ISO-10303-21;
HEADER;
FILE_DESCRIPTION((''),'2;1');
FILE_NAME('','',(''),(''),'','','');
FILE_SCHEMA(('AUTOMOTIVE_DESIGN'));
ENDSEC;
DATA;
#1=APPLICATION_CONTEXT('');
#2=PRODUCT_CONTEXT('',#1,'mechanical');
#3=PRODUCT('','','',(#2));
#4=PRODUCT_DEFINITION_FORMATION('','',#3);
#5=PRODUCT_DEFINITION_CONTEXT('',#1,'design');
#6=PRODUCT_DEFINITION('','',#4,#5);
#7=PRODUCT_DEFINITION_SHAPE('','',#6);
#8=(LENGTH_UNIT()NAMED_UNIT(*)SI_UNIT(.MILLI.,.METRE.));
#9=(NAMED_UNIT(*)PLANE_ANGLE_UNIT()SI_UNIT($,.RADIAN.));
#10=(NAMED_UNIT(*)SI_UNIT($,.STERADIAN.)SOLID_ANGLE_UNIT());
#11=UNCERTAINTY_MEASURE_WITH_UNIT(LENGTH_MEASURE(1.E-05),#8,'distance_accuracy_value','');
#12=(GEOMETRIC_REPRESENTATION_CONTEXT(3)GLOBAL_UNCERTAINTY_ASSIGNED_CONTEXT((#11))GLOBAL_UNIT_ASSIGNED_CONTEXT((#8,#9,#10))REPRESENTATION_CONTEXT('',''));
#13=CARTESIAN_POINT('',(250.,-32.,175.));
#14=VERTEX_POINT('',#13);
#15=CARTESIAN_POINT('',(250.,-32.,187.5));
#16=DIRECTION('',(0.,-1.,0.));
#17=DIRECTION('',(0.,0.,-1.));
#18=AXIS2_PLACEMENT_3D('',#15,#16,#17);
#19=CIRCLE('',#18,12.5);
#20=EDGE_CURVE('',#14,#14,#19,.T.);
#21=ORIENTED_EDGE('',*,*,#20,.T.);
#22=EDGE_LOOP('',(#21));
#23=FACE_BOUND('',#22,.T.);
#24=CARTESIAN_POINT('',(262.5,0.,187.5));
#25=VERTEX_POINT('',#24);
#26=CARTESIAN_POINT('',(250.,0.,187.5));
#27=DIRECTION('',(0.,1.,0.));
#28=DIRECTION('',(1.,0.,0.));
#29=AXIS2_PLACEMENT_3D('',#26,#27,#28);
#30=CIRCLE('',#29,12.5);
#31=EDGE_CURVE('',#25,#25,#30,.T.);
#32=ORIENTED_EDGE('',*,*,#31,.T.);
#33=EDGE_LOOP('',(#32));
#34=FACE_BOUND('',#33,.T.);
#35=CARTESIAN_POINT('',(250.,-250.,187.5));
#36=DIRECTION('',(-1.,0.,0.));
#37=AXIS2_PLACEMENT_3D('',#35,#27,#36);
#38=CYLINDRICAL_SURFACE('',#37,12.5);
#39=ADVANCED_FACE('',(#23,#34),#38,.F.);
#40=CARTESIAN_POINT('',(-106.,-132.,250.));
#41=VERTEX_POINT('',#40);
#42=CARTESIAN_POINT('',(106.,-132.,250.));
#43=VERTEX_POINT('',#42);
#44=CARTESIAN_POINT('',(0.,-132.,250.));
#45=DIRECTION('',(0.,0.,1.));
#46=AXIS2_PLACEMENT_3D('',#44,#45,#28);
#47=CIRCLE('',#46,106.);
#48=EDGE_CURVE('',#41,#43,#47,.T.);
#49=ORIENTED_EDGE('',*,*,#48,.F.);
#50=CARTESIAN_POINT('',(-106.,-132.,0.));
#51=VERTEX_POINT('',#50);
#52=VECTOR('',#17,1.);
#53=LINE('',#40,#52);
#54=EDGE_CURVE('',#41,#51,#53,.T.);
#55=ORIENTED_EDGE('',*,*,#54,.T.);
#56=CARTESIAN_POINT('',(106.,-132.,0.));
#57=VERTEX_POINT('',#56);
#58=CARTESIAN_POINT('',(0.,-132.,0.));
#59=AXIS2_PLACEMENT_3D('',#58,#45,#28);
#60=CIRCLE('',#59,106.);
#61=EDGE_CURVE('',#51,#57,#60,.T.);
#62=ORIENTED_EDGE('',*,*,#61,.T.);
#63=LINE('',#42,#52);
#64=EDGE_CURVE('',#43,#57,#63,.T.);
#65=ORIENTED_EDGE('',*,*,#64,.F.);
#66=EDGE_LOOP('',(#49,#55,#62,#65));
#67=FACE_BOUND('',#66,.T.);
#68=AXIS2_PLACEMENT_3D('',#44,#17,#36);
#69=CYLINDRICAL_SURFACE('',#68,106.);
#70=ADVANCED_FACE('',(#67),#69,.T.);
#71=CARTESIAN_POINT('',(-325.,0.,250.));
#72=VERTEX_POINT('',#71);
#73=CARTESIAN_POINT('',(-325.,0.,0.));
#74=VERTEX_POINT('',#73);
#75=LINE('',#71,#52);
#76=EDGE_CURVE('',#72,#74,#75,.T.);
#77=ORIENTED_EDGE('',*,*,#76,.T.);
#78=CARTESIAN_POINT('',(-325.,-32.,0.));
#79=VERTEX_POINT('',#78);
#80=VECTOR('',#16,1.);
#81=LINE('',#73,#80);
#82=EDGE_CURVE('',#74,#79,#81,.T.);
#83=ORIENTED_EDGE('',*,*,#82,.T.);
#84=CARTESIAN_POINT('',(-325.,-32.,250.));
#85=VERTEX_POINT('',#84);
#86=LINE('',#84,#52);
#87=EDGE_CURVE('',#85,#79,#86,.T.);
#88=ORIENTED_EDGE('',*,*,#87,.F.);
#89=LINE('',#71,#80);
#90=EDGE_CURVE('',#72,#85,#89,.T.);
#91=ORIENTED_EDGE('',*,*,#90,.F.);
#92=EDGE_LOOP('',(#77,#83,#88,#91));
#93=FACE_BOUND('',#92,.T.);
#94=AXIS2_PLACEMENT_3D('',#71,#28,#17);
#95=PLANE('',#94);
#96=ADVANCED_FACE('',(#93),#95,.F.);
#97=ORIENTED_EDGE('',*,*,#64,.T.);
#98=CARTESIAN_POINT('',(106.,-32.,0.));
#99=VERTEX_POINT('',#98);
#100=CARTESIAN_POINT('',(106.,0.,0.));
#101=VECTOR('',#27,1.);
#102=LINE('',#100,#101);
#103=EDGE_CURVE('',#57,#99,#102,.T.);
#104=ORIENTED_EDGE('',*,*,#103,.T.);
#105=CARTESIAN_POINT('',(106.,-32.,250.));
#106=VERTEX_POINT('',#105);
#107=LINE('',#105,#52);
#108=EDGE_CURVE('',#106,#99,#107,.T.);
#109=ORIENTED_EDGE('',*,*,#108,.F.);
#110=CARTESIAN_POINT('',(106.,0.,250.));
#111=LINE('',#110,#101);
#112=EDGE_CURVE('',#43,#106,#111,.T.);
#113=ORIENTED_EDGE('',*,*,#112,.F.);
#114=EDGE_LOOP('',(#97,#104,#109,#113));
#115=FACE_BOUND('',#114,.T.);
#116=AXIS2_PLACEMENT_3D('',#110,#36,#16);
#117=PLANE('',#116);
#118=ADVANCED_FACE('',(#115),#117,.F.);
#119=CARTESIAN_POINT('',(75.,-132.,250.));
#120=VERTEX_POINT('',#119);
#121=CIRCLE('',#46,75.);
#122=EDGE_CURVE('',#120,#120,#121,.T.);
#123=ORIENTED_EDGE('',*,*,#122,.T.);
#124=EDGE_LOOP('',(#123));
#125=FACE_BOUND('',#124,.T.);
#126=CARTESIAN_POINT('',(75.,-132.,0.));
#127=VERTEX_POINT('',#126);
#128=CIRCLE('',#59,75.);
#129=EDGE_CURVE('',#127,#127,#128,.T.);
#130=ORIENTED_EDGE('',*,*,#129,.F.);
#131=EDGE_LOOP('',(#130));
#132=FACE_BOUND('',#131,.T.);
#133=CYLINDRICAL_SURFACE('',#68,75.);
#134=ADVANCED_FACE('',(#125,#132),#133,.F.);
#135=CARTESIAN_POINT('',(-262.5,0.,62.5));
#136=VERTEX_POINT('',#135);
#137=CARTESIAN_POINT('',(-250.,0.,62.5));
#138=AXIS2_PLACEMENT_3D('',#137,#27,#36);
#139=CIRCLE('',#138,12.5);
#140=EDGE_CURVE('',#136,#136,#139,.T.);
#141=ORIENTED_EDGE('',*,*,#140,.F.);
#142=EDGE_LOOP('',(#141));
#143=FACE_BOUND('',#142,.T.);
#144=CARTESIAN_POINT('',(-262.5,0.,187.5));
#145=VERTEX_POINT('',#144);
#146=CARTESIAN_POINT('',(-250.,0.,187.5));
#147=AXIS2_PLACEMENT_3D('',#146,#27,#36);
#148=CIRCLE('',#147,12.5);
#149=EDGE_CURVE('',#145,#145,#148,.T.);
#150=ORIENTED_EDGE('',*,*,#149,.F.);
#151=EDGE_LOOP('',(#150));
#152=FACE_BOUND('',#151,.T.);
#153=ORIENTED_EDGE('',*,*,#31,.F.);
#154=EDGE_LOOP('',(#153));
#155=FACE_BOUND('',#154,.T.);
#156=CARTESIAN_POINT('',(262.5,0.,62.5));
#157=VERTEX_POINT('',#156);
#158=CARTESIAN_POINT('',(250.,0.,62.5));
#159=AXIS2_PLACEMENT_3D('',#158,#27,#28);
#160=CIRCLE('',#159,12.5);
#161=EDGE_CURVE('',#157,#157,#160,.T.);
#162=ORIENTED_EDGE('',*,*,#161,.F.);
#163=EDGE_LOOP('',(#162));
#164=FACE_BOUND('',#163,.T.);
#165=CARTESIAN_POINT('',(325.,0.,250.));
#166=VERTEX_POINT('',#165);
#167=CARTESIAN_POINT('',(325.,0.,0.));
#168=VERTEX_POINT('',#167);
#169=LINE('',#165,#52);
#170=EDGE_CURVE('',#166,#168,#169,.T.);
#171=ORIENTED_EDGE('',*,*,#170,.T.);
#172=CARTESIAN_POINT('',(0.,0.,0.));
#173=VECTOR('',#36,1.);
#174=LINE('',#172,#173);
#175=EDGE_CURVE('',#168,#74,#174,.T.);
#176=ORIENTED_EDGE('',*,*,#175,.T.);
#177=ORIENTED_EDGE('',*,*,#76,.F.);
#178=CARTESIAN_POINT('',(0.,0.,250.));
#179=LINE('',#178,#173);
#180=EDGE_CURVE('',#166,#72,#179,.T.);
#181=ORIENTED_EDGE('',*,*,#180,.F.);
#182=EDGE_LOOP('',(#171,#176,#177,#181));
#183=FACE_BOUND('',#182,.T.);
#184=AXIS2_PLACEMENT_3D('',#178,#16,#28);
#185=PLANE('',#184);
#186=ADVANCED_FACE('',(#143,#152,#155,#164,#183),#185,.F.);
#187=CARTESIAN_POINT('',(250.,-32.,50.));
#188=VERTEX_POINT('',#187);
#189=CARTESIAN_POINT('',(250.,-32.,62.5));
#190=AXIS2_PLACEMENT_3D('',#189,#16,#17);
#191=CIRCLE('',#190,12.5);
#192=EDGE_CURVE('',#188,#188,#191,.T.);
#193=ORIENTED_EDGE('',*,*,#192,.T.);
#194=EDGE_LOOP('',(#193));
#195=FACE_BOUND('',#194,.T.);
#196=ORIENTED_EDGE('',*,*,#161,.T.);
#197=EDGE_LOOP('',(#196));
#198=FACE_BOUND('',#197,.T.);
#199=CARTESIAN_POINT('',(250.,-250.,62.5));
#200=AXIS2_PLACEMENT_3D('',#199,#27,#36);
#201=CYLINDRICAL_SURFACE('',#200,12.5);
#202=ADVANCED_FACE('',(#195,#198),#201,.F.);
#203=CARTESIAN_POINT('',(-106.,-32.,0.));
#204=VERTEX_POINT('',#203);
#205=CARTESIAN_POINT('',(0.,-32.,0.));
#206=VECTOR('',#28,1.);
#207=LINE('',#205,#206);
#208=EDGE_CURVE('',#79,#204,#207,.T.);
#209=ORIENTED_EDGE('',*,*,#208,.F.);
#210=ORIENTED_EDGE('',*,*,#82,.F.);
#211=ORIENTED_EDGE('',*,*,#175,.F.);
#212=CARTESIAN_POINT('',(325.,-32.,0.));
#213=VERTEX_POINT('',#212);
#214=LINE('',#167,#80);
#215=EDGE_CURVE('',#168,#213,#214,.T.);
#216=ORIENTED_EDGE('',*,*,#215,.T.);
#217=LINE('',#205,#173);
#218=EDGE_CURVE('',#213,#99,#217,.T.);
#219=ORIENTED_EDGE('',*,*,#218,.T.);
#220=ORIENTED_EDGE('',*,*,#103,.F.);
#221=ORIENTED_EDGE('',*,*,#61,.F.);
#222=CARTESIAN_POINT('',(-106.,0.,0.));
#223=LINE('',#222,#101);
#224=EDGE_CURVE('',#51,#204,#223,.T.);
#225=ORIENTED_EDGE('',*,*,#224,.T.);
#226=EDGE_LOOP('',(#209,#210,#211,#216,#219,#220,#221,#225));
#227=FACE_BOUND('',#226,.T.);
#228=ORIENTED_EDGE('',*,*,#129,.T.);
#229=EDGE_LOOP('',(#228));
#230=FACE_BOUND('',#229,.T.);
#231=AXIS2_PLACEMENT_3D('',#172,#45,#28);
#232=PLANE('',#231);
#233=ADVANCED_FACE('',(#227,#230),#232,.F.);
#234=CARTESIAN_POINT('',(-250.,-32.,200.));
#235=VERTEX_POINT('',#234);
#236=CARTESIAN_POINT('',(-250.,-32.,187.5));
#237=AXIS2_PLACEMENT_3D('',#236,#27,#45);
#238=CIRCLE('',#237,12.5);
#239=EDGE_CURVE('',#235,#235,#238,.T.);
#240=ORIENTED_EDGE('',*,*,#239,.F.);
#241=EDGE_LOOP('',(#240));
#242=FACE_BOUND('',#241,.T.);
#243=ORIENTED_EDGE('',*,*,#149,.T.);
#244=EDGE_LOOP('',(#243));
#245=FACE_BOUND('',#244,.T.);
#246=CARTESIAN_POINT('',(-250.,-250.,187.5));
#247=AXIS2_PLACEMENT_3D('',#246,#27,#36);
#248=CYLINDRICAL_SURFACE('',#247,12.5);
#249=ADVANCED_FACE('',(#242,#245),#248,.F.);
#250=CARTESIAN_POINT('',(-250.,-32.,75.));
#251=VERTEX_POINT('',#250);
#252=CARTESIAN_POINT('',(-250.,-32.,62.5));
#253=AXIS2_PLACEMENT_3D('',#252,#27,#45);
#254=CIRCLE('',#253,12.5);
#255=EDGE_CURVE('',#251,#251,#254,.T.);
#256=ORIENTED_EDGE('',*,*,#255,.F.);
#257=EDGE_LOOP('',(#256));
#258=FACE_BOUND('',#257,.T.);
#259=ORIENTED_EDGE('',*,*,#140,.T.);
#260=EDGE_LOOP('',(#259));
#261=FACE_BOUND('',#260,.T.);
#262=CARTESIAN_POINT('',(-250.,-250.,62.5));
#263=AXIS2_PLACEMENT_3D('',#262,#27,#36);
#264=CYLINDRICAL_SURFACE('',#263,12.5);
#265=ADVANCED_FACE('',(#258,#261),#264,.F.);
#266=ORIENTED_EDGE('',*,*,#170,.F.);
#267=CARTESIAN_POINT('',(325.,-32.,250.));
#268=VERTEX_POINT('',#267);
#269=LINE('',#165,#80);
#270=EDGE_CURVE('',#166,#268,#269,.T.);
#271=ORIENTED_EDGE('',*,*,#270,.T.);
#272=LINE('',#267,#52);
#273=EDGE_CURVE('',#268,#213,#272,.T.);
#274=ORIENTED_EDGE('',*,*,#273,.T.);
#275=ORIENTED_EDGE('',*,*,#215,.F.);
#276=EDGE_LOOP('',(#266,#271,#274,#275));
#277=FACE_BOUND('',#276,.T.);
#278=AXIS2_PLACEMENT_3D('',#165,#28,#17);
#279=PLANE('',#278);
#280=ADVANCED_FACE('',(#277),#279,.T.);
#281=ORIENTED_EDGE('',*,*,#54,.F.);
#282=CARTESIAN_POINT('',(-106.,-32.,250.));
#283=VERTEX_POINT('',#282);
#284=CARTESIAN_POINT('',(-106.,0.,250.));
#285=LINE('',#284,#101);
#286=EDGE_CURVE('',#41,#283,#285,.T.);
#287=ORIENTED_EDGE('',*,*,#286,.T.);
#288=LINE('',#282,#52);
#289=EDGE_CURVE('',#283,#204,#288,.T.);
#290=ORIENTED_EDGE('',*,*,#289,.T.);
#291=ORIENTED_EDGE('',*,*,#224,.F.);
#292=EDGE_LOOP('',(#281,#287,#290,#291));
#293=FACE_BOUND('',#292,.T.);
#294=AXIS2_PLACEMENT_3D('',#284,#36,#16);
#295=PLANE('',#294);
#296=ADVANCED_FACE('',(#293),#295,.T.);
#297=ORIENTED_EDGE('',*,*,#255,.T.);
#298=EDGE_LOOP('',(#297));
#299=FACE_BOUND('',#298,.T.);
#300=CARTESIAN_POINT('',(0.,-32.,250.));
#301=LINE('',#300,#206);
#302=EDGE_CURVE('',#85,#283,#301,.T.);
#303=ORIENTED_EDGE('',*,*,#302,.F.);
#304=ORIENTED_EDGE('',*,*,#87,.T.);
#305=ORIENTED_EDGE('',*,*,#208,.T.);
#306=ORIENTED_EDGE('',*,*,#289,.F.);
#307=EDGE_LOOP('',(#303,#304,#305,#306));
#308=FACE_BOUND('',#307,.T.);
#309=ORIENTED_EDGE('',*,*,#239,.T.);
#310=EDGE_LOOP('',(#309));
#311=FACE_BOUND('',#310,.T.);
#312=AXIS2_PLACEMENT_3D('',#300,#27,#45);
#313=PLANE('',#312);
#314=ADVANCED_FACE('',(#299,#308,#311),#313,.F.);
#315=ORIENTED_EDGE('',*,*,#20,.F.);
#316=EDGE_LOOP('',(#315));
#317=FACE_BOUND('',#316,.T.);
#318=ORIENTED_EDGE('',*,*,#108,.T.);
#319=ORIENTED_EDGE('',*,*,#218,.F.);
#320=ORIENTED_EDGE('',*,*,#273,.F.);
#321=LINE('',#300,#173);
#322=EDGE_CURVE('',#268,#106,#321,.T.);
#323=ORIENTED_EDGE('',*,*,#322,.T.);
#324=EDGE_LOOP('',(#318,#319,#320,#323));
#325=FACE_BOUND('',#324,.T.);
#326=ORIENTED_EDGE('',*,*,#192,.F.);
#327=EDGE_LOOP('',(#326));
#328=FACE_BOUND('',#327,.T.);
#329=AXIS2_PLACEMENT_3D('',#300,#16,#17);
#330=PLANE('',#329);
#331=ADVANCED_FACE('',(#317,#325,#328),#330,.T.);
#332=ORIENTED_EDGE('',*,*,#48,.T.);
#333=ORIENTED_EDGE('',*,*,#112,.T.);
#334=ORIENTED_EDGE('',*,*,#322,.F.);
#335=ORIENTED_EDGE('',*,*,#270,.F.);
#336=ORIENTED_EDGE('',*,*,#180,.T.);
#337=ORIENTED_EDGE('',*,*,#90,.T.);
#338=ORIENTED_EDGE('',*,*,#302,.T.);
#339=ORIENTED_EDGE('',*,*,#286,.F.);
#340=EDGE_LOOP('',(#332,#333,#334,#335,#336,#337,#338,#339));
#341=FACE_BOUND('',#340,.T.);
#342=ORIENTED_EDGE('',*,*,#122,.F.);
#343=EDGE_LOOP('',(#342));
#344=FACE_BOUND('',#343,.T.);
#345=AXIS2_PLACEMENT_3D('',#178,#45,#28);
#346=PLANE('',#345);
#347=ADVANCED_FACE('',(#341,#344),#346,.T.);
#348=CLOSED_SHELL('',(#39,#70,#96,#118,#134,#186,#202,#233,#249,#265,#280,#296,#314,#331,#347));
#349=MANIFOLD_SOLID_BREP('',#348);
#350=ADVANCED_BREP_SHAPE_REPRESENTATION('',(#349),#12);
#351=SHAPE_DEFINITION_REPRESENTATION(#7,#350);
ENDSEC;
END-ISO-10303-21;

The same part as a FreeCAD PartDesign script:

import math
import FreeCAD as App
import Part
import Sketcher

V = App.Vector

doc = App.newDocument("Part")
body = doc.addObject("PartDesign::Body", "Body")

# Sketch on XY plane
sketch1 = body.newObject("Sketcher::SketchObject", "Sketch")
sketch1.AttachmentSupport = (doc.getObject("XY_Plane"), [""])
sketch1.MapMode = "FlatFace"
sketch1.addGeometry(Part.LineSegment(V(325, 0, 0), V(-325, 0, 0)), False)
sketch1.addGeometry(Part.LineSegment(V(-325, 0, 0), V(-325, -32, 0)), False)
sketch1.addGeometry(Part.LineSegment(V(-325, -32, 0), V(-106, -32, 0)), False)
sketch1.addGeometry(Part.LineSegment(V(-106, -32, 0), V(-106, -132, 0)), False)
sketch1.addGeometry(Part.ArcOfCircle(Part.Circle(V(0, -132, 0), V(0, 0, 1), 106), math.radians(180), math.radians(360)), False)
sketch1.addGeometry(Part.LineSegment(V(106, -132, 0), V(106, -32, 0)), False)
sketch1.addGeometry(Part.LineSegment(V(106, -32, 0), V(325, -32, 0)), False)
sketch1.addGeometry(Part.LineSegment(V(325, -32, 0), V(325, 0, 0)), False)
sketch1.addGeometry(Part.Circle(V(0, -132, 0), V(0, 0, 1), 75), False)
sketch1.addConstraint(Sketcher.Constraint("Coincident", 0, 2, 1, 1))
sketch1.addConstraint(Sketcher.Constraint("Coincident", 1, 2, 2, 1))
sketch1.addConstraint(Sketcher.Constraint("Coincident", 2, 2, 3, 1))
sketch1.addConstraint(Sketcher.Constraint("Tangent", 3, 2, 4, 1))
sketch1.addConstraint(Sketcher.Constraint("Tangent", 4, 2, 5, 1))
sketch1.addConstraint(Sketcher.Constraint("Coincident", 5, 2, 6, 1))
sketch1.addConstraint(Sketcher.Constraint("Coincident", 6, 2, 7, 1))
sketch1.addConstraint(Sketcher.Constraint("Coincident", 7, 2, 0, 1))
sketch1.addConstraint(Sketcher.Constraint("Horizontal", 0))
sketch1.addConstraint(Sketcher.Constraint("Vertical", 1))
sketch1.addConstraint(Sketcher.Constraint("Horizontal", 2))
sketch1.addConstraint(Sketcher.Constraint("Vertical", 3))
sketch1.addConstraint(Sketcher.Constraint("Vertical", 5))
sketch1.addConstraint(Sketcher.Constraint("Horizontal", 6))
sketch1.addConstraint(Sketcher.Constraint("Vertical", 7))
sketch1.addConstraint(Sketcher.Constraint("Coincident", 8, 3, 4, 3))
sketch1.addConstraint(Sketcher.Constraint("Symmetric", 0, 2, 7, 2, -1, 1))
sketch1.addConstraint(Sketcher.Constraint("Symmetric", 2, 2, 5, 2, -2))
sketch1.addConstraint(Sketcher.Constraint("Diameter", 8, 150.0))
sketch1.addConstraint(Sketcher.Constraint("Radius", 4, 106.0))
sketch1.addConstraint(Sketcher.Constraint("DistanceX", 0, 2, 0, 1, 650.0))
sketch1.addConstraint(Sketcher.Constraint("DistanceY", 1, 2, 1, 1, 32.0))
sketch1.addConstraint(Sketcher.Constraint("DistanceY", 3, 2, 3, 1, 100.0))
pad1 = body.newObject("PartDesign::Pad", "Pad")
pad1.Profile = sketch1
pad1.Length = 250

# Sketch on XZ plane
sketch2 = body.newObject("Sketcher::SketchObject", "Sketch001")
sketch2.AttachmentSupport = (doc.getObject("XZ_Plane"), [""])
sketch2.MapMode = "FlatFace"
sketch2.addGeometry(Part.Circle(V(-250, 187.5, 0), V(0, 0, 1), 12.5), False)
sketch2.addGeometry(Part.Circle(V(-250, 62.5, 0), V(0, 0, 1), 12.5), False)
sketch2.addGeometry(Part.Circle(V(250, 187.5, 0), V(0, 0, 1), 12.5), False)
sketch2.addGeometry(Part.Circle(V(250, 62.5, 0), V(0, 0, 1), 12.5), False)
sketch2.addConstraint(Sketcher.Constraint("Equal", 0, 1))
sketch2.addConstraint(Sketcher.Constraint("Equal", 1, 2))
sketch2.addConstraint(Sketcher.Constraint("Equal", 2, 3))
sketch2.addConstraint(Sketcher.Constraint("Symmetric", 0, 3, 2, 3, -2))
sketch2.addConstraint(Sketcher.Constraint("Symmetric", 1, 3, 3, 3, -2))
sketch2.addConstraint(Sketcher.Constraint("Vertical", 0, 3, 1, 3))
sketch2.addConstraint(Sketcher.Constraint("Diameter", 0, 25.0))
sketch2.addConstraint(Sketcher.Constraint("DistanceX", 0, 3, -1, 1, 250.0))
sketch2.addConstraint(Sketcher.Constraint("DistanceY", 1, 3, 0, 3, 125.0))
sketch2.addConstraint(Sketcher.Constraint("DistanceY", -1, 1, 0, 3, 187.5))
pocket1 = body.newObject("PartDesign::Pocket", "Pocket")
pocket1.Profile = sketch2
pocket1.Length = 250
pocket1.Reversed = True

doc.recompute()
